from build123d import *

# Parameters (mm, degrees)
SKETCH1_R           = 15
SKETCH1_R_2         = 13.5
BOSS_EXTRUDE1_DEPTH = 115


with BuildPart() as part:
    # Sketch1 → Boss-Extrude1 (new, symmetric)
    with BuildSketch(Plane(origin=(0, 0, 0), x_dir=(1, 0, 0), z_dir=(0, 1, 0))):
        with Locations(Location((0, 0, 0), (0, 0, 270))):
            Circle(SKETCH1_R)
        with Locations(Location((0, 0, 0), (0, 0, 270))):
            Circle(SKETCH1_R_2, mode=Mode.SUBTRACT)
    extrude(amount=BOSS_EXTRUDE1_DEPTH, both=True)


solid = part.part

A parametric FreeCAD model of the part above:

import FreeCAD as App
import Part
import Sketcher
from FreeCAD import Vector
Q = App.Units.Quantity

doc = App.newDocument("Part")
params = doc.addObject("Spreadsheet::Sheet", "Params")
for row, (alias, value) in enumerate([
    ("sketch1_diameter", "30 mm"),
    ("sketch1_diameter2", "27 mm"),
    ("pad1_length", "230 mm"),
], start=1):
    params.set(f"A{row}", alias)
    params.set(f"B{row}", "=" + value)
    params.setAlias(f"B{row}", alias)

body = doc.addObject("PartDesign::Body", "Body")

# Sketch on XZ plane
sketch1 = body.newObject("Sketcher::SketchObject", "Sketch")
sketch1.AttachmentSupport = (doc.getObject("XZ_Plane"), [""])
sketch1.MapMode = "FlatFace"
sketch1.addGeometry([
    Part.Circle(Vector(0, 0, 0), Vector(0, 0, 1), 15),
    Part.Circle(Vector(0, 0, 0), Vector(0, 0, 1), 14),
], False)
sketch1.addConstraint([
    Sketcher.Constraint("Coincident", 0, 3, -1, 1),
    Sketcher.Constraint("Coincident", 1, 3, -1, 1),
    Sketcher.Constraint("Diameter", 0, Q("30 mm")),
    Sketcher.Constraint("Diameter", 1, Q("27 mm")),
])
sketch1.setExpression("Constraints[2]", "Params.sketch1_diameter")
sketch1.setExpression("Constraints[3]", "Params.sketch1_diameter2")
pad1 = body.newObject("PartDesign::Pad", "Pad")
pad1.Profile = sketch1
pad1.setExpression("Length", "Params.pad1_length")
pad1.Midplane = True

doc.recompute()
